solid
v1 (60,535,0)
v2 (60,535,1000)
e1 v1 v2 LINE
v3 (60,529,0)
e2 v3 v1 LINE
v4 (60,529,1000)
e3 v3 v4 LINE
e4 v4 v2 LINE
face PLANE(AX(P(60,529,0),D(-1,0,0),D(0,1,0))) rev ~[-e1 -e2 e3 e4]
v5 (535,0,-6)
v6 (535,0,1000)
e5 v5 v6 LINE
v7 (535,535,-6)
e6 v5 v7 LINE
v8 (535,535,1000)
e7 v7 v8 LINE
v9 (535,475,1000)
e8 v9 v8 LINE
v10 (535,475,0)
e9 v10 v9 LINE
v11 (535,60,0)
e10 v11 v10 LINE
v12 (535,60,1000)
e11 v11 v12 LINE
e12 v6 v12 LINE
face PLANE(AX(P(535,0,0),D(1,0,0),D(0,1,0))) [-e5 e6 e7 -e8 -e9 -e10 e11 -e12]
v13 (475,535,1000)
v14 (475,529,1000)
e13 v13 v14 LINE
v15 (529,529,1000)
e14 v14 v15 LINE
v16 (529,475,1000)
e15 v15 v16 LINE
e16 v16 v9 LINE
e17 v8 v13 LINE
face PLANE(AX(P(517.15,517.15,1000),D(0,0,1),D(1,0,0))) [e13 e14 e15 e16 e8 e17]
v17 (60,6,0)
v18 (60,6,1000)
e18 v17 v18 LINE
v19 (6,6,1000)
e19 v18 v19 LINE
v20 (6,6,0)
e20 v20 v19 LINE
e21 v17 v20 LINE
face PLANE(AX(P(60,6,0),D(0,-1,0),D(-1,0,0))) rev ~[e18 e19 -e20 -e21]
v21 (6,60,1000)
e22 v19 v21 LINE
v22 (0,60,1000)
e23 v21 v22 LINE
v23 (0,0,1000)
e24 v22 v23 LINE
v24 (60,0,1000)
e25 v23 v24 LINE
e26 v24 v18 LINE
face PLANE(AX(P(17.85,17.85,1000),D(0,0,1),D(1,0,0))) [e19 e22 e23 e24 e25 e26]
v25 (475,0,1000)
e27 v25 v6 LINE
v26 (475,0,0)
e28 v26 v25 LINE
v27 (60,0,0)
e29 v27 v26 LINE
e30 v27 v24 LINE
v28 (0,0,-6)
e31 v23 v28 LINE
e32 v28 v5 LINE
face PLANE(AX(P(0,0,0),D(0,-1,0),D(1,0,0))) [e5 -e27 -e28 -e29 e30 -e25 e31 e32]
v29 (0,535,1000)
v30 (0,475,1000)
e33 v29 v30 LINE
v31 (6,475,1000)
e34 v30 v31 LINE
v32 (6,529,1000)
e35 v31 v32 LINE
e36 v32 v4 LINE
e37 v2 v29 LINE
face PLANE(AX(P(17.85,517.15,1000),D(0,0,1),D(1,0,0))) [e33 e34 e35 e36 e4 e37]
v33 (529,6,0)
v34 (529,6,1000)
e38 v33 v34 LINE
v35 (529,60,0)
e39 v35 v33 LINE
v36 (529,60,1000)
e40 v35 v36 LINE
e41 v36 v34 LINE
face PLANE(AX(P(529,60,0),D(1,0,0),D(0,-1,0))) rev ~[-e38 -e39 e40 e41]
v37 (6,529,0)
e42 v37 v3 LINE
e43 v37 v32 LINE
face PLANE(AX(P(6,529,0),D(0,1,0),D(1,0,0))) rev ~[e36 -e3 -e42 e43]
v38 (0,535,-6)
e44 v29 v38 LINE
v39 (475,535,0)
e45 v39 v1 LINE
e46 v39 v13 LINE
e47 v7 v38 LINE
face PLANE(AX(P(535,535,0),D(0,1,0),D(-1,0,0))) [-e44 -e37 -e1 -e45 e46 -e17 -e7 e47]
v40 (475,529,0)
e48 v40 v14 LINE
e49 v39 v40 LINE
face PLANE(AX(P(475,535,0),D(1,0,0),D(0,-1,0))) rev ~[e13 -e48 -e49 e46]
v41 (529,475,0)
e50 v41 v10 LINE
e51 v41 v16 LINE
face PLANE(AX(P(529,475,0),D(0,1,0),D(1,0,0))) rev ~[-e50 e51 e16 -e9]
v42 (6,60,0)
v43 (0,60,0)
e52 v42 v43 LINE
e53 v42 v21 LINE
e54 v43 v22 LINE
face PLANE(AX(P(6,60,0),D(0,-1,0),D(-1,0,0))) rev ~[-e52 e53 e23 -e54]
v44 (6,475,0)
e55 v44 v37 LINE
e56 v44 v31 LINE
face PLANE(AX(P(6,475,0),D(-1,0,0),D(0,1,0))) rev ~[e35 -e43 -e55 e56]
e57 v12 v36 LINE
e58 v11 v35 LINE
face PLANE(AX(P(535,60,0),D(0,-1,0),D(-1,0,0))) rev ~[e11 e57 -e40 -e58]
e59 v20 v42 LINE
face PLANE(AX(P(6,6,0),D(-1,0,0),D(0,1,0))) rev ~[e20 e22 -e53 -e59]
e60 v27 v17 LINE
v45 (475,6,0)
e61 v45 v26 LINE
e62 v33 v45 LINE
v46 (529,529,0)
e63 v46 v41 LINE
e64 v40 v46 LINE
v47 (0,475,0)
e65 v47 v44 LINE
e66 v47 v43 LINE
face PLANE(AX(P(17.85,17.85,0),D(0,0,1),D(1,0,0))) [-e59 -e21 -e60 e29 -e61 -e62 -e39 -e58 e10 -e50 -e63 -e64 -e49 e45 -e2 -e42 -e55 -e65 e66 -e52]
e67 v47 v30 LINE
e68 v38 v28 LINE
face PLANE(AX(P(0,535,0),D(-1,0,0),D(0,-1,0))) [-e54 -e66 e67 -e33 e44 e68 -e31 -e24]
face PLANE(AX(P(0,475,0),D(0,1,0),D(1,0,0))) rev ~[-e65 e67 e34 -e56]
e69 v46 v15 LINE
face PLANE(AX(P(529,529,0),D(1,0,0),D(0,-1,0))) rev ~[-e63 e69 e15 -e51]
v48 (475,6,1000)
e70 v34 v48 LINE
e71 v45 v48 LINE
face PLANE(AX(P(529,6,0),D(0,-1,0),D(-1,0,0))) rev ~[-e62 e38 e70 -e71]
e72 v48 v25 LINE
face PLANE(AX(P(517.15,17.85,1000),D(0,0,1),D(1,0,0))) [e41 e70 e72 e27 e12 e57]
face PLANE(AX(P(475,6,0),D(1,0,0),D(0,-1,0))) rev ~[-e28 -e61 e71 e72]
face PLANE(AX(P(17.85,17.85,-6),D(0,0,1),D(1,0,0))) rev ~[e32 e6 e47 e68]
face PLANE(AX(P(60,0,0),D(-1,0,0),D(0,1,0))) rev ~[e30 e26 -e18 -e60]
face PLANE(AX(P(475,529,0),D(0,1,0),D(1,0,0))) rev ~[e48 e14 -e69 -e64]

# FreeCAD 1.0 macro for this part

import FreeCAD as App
import Part
import Sketcher

doc = App.newDocument("Part")
body = doc.addObject("PartDesign::Body", "Body")

# Sketch on XY plane
sketch1 = doc.addObject("Sketcher::SketchObject", "Sketch")
body.addObject(sketch1)
sketch1.AttachmentSupport = (doc.XY_Plane, [""])
sketch1.MapMode = "FlatFace"
sketch1.addGeometry(Part.LineSegment(App.Vector(0, 535, 0), App.Vector(0, 475, 0)), False)
sketch1.addGeometry(Part.LineSegment(App.Vector(0, 475, 0), App.Vector(6, 475, 0)), False)
sketch1.addGeometry(Part.LineSegment(App.Vector(6, 475, 0), App.Vector(6, 529, 0)), False)
sketch1.addGeometry(Part.LineSegment(App.Vector(6, 529, 0), App.Vector(60, 529, 0)), False)
sketch1.addGeometry(Part.LineSegment(App.Vector(60, 529, 0), App.Vector(60, 535, 0)), False)
sketch1.addGeometry(Part.LineSegment(App.Vector(60, 535, 0), App.Vector(0, 535, 0)), False)
sketch1.addConstraint(Sketcher.Constraint("Coincident", 0, 2, 1, 1))
sketch1.addConstraint(Sketcher.Constraint("Coincident", 1, 2, 2, 1))
sketch1.addConstraint(Sketcher.Constraint("Coincident", 2, 2, 3, 1))
sketch1.addConstraint(Sketcher.Constraint("Coincident", 3, 2, 4, 1))
sketch1.addConstraint(Sketcher.Constraint("Coincident", 4, 2, 5, 1))
sketch1.addConstraint(Sketcher.Constraint("Coincident", 5, 2, 0, 1))
sketch1.addConstraint(Sketcher.Constraint("Vertical", 0))
sketch1.addConstraint(Sketcher.Constraint("Horizontal", 1))
sketch1.addConstraint(Sketcher.Constraint("Vertical", 2))
sketch1.addConstraint(Sketcher.Constraint("Horizontal", 3))
sketch1.addConstraint(Sketcher.Constraint("Vertical", 4))
sketch1.addConstraint(Sketcher.Constraint("Horizontal", 5))
sketch1.addConstraint(Sketcher.Constraint("PointOnObject", 0, 2, -2))
sketch1.addConstraint(Sketcher.Constraint("Equal", 5, 0))
sketch1.addConstraint(Sketcher.Constraint("Equal", 3, 2))
sketch1.addConstraint(Sketcher.Constraint("DistanceX", 1, 1, 1, 2, 6.0))
sketch1.addConstraint(Sketcher.Constraint("DistanceX", 3, 1, 3, 2, 54.0))
sketch1.addConstraint(Sketcher.Constraint("DistanceY", -1, 1, 0, 2, 475.0))
pad1 = doc.addObject("PartDesign::Pad", "Pad")
body.addObject(pad1)
pad1.Profile = sketch1
pad1.Length = 1000
body2 = doc.addObject("PartDesign::Body", "Body001")

# Sketch on XY plane
sketch2 = doc.addObject("Sketcher::SketchObject", "Sketch001")
body2.addObject(sketch2)
sketch2.AttachmentSupport = (doc.getObject("XY_Plane001"), [""])
sketch2.MapMode = "FlatFace"
sketch2.addGeometry(Part.LineSegment(App.Vector(529, 475, 0), App.Vector(535, 475, 0)), False)
sketch2.addGeometry(Part.LineSegment(App.Vector(535, 475, 0), App.Vector(535, 535, 0)), False)
sketch2.addGeometry(Part.LineSegment(App.Vector(535, 535, 0), App.Vector(475, 535, 0)), False)
sketch2.addGeometry(Part.LineSegment(App.Vector(475, 535, 0), App.Vector(475, 529, 0)), False)
sketch2.addGeometry(Part.LineSegment(App.Vector(475, 529, 0), App.Vector(529, 529, 0)), False)
sketch2.addGeometry(Part.LineSegment(App.Vector(529, 529, 0), App.Vector(529, 475, 0)), False)
sketch2.addConstraint(Sketcher.Constraint("Coincident", 0, 2, 1, 1))
sketch2.addConstraint(Sketcher.Constraint("Coincident", 1, 2, 2, 1))
sketch2.addConstraint(Sketcher.Constraint("Coincident", 2, 2, 3, 1))
sketch2.addConstraint(Sketcher.Constraint("Coincident", 3, 2, 4, 1))
sketch2.addConstraint(Sketcher.Constraint("Coincident", 4, 2, 5, 1))
sketch2.addConstraint(Sketcher.Constraint("Coincident", 5, 2, 0, 1))
sketch2.addConstraint(Sketcher.Constraint("Horizontal", 0))
sketch2.addConstraint(Sketcher.Constraint("Vertical", 1))
sketch2.addConstraint(Sketcher.Constraint("Horizontal", 2))
sketch2.addConstraint(Sketcher.Constraint("Vertical", 3))
sketch2.addConstraint(Sketcher.Constraint("Horizontal", 4))
sketch2.addConstraint(Sketcher.Constraint("Vertical", 5))
sketch2.addConstraint(Sketcher.Constraint("Equal", 2, 1))
sketch2.addConstraint(Sketcher.Constraint("Equal", 0, 3))
sketch2.addConstraint(Sketcher.Constraint("DistanceX", 0, 1, 0, 2, 6.0))
sketch2.addConstraint(Sketcher.Constraint("DistanceX", 2, 2, 2, 1, 60.0))
sketch2.addConstraint(Sketcher.Constraint("DistanceX", -1, 1, 0, 2, 535.0))
sketch2.addConstraint(Sketcher.Constraint("DistanceY", -1, 1, 0, 2, 475.0))
pad2 = doc.addObject("PartDesign::Pad", "Pad001")
body2.addObject(pad2)
pad2.Profile = sketch2
pad2.Length = 1000
body3 = doc.addObject("PartDesign::Body", "Body002")

# Sketch on XY plane
sketch3 = doc.addObject("Sketcher::SketchObject", "Sketch002")
body3.addObject(sketch3)
sketch3.AttachmentSupport = (doc.getObject("XY_Plane002"), [""])
sketch3.MapMode = "FlatFace"
sketch3.addGeometry(Part.LineSegment(App.Vector(475, 6, 0), App.Vector(475, 0, 0)), False)
sketch3.addGeometry(Part.LineSegment(App.Vector(475, 0, 0), App.Vector(535, 0, 0)), False)
sketch3.addGeometry(Part.LineSegment(App.Vector(535, 0, 0), App.Vector(535, 60, 0)), False)
sketch3.addGeometry(Part.LineSegment(App.Vector(535, 60, 0), App.Vector(529, 60, 0)), False)
sketch3.addGeometry(Part.LineSegment(App.Vector(529, 60, 0), App.Vector(529, 6, 0)), False)
sketch3.addGeometry(Part.LineSegment(App.Vector(529, 6, 0), App.Vector(475, 6, 0)), False)
sketch3.addConstraint(Sketcher.Constraint("Coincident", 0, 2, 1, 1))
sketch3.addConstraint(Sketcher.Constraint("Coincident", 1, 2, 2, 1))
sketch3.addConstraint(Sketcher.Constraint("Coincident", 2, 2, 3, 1))
sketch3.addConstraint(Sketcher.Constraint("Coincident", 3, 2, 4, 1))
sketch3.addConstraint(Sketcher.Constraint("Coincident", 4, 2, 5, 1))
sketch3.addConstraint(Sketcher.Constraint("Coincident", 5, 2, 0, 1))
sketch3.addConstraint(Sketcher.Constraint("Vertical", 0))
sketch3.addConstraint(Sketcher.Constraint("Horizontal", 1))
sketch3.addConstraint(Sketcher.Constraint("Vertical", 2))
sketch3.addConstraint(Sketcher.Constraint("Horizontal", 3))
sketch3.addConstraint(Sketcher.Constraint("Vertical", 4))
sketch3.addConstraint(Sketcher.Constraint("Horizontal", 5))
sketch3.addConstraint(Sketcher.Constraint("PointOnObject", 0, 2, -1))
sketch3.addConstraint(Sketcher.Constraint("Equal", 3, 0))
sketch3.addConstraint(Sketcher.Constraint("Equal", 1, 2))
sketch3.addConstraint(Sketcher.Constraint("DistanceX", 1, 1, 1, 2, 60.0))
sketch3.addConstraint(Sketcher.Constraint("DistanceX", 3, 2, 3, 1, 6.0))
sketch3.addConstraint(Sketcher.Constraint("DistanceX", -1, 1, 0, 2, 475.0))
pad3 = doc.addObject("PartDesign::Pad", "Pad002")
body3.addObject(pad3)
pad3.Profile = sketch3
pad3.Length = 1000
body4 = doc.addObject("PartDesign::Body", "Body003")

# Sketch on XY plane
sketch4 = doc.addObject("Sketcher::SketchObject", "Sketch003")
body4.addObject(sketch4)
sketch4.AttachmentSupport = (doc.getObject("XY_Plane003"), [""])
sketch4.MapMode = "FlatFace"
sketch4.addGeometry(Part.LineSegment(App.Vector(0, 60, 0), App.Vector(0, 0, 0)), False)
sketch4.addGeometry(Part.LineSegment(App.Vector(0, 0, 0), App.Vector(60, 0, 0)), False)
sketch4.addGeometry(Part.LineSegment(App.Vector(60, 0, 0), App.Vector(60, 6, 0)), False)
sketch4.addGeometry(Part.LineSegment(App.Vector(60, 6, 0), App.Vector(6, 6, 0)), False)
sketch4.addGeometry(Part.LineSegment(App.Vector(6, 6, 0), App.Vector(6, 60, 0)), False)
sketch4.addGeometry(Part.LineSegment(App.Vector(6, 60, 0), App.Vector(0, 60, 0)), False)
sketch4.addConstraint(Sketcher.Constraint("Coincident", 0, 2, 1, 1))
sketch4.addConstraint(Sketcher.Constraint("Coincident", 1, 2, 2, 1))
sketch4.addConstraint(Sketcher.Constraint("Coincident", 2, 2, 3, 1))
sketch4.addConstraint(Sketcher.Constraint("Coincident", 3, 2, 4, 1))
sketch4.addConstraint(Sketcher.Constraint("Coincident", 4, 2, 5, 1))
sketch4.addConstraint(Sketcher.Constraint("Coincident", 5, 2, 0, 1))
sketch4.addConstraint(Sketcher.Constraint("Vertical", 0))
sketch4.addConstraint(Sketcher.Constraint("Horizontal", 1))
sketch4.addConstraint(Sketcher.Constraint("Vertical", 2))
sketch4.addConstraint(Sketcher.Constraint("Horizontal", 3))
sketch4.addConstraint(Sketcher.Constraint("Vertical", 4))
sketch4.addConstraint(Sketcher.Constraint("Horizontal", 5))
sketch4.addConstraint(Sketcher.Constraint("Coincident", 0, 2, -1, 1))
sketch4.addConstraint(Sketcher.Constraint("Equal", 1, 0))
sketch4.addConstraint(Sketcher.Constraint("Equal", 5, 2))
sketch4.addConstraint(Sketcher.Constraint("DistanceX", 1, 1, 1, 2, 60.0))
sketch4.addConstraint(Sketcher.Constraint("DistanceX", 3, 2, 3, 1, 54.0))
pad4 = doc.addObject("PartDesign::Pad", "Pad003")
body4.addObject(pad4)
pad4.Profile = sketch4
pad4.Length = 1000
body.AllowCompound = True
doc.recompute()

boolean = doc.addObject("PartDesign::Boolean", "Boolean")
body.addObject(boolean)
boolean.Type = "Fuse"
boolean.addObjects([body2])
doc.recompute()

boolean2 = doc.addObject("PartDesign::Boolean", "Boolean001")
body.addObject(boolean2)
boolean2.Type = "Fuse"
boolean2.addObjects([body3])
doc.recompute()

boolean3 = doc.addObject("PartDesign::Boolean", "Boolean002")
body.addObject(boolean3)
boolean3.Type = "Fuse"
boolean3.addObjects([body4])

# Sketch on XY plane
sketch5 = doc.addObject("Sketcher::SketchObject", "Sketch004")
body.addObject(sketch5)
sketch5.AttachmentSupport = (doc.XY_Plane, [""])
sketch5.MapMode = "FlatFace"
sketch5.addGeometry(Part.LineSegment(App.Vector(0, 0, 0), App.Vector(535, 0, 0)), False)
sketch5.addGeometry(Part.LineSegment(App.Vector(535, 0, 0), App.Vector(535, 535, 0)), False)
sketch5.addGeometry(Part.LineSegment(App.Vector(535, 535, 0), App.Vector(0, 535, 0)), False)
sketch5.addGeometry(Part.LineSegment(App.Vector(0, 535, 0), App.Vector(0, 0, 0)), False)
sketch5.addConstraint(Sketcher.Constraint("Coincident", 0, 2, 1, 1))
sketch5.addConstraint(Sketcher.Constraint("Coincident", 1, 2, 2, 1))
sketch5.addConstraint(Sketcher.Constraint("Coincident", 2, 2, 3, 1))
sketch5.addConstraint(Sketcher.Constraint("Coincident", 3, 2, 0, 1))
sketch5.addConstraint(Sketcher.Constraint("Horizontal", 0))
sketch5.addConstraint(Sketcher.Constraint("Vertical", 1))
sketch5.addConstraint(Sketcher.Constraint("Horizontal", 2))
sketch5.addConstraint(Sketcher.Constraint("Vertical", 3))
sketch5.addConstraint(Sketcher.Constraint("Coincident", 3, 2, -1, 1))
sketch5.addConstraint(Sketcher.Constraint("Equal", 2, 1))
sketch5.addConstraint(Sketcher.Constraint("DistanceX", 0, 1, 0, 2, 535.0))
pad5 = doc.addObject("PartDesign::Pad", "Pad004")
body.addObject(pad5)
pad5.Profile = sketch5
pad5.Length = 6
pad5.Reversed = True

doc.recompute()
